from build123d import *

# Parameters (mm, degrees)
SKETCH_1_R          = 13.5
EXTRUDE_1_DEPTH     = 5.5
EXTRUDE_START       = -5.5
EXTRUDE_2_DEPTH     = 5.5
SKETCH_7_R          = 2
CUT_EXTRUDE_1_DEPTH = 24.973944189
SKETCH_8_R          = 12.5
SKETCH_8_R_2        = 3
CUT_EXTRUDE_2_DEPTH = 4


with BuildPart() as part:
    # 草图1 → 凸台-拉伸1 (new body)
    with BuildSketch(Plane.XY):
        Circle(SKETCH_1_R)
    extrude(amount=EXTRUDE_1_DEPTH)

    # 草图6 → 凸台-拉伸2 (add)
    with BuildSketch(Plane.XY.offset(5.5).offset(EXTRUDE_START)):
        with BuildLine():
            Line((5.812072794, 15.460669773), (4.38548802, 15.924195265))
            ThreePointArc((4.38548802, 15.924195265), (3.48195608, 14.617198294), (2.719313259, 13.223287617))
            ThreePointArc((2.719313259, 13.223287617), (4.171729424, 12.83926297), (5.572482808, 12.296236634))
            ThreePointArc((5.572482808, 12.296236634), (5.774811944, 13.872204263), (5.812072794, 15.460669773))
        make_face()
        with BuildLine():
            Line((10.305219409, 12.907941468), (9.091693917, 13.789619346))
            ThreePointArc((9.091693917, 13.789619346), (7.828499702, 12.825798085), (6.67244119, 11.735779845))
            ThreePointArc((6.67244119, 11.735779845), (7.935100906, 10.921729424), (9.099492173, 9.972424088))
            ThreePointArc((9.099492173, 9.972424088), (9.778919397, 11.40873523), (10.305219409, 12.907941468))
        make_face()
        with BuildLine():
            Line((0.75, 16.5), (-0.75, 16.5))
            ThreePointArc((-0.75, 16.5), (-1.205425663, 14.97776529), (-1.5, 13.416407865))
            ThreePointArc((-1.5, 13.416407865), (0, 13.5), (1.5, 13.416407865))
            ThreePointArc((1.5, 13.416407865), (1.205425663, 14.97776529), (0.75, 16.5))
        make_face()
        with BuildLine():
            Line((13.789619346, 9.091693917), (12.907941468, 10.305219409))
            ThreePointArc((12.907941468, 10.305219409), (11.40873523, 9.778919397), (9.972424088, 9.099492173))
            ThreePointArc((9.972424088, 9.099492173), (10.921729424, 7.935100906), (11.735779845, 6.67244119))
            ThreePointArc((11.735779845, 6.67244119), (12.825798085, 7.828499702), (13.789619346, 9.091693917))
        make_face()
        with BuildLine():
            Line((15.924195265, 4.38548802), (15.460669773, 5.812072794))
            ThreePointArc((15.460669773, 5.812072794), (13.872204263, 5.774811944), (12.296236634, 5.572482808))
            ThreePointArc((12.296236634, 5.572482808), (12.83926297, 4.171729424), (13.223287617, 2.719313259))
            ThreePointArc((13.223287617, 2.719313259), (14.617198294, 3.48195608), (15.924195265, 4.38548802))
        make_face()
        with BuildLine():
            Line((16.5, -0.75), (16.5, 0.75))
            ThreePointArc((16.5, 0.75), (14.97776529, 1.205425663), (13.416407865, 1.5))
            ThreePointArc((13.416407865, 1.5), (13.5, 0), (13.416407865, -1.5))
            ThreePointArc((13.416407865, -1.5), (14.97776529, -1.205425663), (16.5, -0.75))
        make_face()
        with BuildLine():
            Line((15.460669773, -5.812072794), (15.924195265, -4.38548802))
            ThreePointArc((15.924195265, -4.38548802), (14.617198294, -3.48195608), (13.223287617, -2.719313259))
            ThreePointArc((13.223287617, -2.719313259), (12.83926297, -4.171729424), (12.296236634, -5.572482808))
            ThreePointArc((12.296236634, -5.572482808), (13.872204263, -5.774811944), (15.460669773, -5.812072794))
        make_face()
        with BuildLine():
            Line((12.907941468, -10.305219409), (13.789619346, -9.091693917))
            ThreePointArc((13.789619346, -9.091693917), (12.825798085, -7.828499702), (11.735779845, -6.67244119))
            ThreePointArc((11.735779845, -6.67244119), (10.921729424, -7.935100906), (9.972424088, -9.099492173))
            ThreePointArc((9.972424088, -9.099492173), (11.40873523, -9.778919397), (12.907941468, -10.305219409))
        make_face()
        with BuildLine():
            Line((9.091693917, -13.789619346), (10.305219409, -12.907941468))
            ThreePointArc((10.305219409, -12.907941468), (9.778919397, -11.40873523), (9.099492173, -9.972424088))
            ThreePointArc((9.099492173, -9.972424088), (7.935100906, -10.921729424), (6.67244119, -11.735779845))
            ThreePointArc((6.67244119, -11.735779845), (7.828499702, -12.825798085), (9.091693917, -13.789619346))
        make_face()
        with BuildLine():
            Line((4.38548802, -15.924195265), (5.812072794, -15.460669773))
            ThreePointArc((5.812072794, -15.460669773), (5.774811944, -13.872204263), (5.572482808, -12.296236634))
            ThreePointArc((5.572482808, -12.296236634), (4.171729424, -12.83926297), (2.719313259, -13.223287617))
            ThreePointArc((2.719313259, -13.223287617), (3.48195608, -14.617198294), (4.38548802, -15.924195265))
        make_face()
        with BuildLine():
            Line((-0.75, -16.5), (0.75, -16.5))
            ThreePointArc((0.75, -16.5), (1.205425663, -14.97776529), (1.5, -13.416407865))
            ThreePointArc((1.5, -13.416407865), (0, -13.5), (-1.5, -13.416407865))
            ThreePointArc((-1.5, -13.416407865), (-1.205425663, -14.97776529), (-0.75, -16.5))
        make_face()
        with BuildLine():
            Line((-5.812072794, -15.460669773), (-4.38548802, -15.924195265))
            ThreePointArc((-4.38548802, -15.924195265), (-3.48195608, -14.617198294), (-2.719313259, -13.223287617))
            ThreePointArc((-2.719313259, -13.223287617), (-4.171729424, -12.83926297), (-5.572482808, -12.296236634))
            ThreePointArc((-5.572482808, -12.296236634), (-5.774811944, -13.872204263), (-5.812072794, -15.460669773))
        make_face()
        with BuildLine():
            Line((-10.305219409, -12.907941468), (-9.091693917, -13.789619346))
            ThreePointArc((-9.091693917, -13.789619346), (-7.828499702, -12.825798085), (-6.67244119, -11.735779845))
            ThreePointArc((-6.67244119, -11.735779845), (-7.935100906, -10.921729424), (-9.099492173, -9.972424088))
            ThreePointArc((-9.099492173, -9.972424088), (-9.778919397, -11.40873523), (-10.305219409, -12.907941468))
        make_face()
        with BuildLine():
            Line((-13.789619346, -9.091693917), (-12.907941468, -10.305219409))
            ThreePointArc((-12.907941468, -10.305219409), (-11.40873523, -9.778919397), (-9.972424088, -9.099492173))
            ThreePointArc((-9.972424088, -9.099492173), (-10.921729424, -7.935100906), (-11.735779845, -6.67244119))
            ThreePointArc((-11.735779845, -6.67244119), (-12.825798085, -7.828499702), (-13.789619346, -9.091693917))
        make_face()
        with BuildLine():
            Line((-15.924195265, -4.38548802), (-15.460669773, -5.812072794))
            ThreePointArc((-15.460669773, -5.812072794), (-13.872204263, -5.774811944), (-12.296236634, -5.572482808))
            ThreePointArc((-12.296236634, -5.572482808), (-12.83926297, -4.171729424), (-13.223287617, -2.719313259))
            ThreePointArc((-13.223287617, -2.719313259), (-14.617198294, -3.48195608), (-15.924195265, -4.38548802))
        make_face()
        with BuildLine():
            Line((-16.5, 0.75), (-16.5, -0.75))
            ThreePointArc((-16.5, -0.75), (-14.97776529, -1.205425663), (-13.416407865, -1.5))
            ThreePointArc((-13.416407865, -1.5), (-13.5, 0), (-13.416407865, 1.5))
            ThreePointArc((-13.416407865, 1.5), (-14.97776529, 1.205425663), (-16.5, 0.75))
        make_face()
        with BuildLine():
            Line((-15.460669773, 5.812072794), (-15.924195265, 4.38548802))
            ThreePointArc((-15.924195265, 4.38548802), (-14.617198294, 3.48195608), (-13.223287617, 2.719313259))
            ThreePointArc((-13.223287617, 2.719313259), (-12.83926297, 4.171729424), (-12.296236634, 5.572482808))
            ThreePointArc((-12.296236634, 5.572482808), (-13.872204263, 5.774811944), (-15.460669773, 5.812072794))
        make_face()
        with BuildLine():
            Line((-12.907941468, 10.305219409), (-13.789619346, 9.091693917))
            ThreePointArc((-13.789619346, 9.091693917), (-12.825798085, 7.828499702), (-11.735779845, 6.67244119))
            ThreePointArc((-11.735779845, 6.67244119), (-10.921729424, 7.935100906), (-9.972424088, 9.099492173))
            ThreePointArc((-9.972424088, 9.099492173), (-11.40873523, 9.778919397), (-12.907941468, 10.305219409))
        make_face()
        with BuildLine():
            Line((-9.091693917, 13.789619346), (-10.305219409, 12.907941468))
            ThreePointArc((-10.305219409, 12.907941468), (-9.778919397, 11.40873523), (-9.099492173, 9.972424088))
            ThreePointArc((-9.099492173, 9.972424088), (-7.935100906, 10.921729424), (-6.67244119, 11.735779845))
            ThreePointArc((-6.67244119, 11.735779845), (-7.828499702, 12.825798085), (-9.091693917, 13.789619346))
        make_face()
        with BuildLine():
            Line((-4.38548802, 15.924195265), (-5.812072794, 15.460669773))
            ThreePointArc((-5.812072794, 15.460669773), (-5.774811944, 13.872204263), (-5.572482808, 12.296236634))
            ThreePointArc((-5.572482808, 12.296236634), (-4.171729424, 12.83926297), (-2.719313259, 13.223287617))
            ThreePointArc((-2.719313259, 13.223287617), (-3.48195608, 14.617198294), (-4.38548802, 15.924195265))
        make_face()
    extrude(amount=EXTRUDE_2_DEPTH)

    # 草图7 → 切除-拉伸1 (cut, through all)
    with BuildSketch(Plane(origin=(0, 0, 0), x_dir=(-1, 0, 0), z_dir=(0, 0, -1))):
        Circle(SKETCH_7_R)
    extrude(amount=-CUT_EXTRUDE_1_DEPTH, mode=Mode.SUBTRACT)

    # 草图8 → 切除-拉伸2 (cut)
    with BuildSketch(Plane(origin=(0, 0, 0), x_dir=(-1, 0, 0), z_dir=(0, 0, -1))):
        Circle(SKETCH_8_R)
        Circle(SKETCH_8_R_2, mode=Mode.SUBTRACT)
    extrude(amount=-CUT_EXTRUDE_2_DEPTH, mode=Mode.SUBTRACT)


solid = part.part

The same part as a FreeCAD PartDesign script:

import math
import FreeCAD as App
import Part
import Sketcher

V = App.Vector
Q = App.Units.Quantity

doc = App.newDocument("Part")
body = doc.addObject("PartDesign::Body", "Body")

sketch1 = doc.addObject("Sketcher::SketchObject", "Sketch")
body.addObject(sketch1)
sketch1.AttachmentSupport = (doc.XY_Plane, [""])
sketch1.MapMode = "FlatFace"
sketch1.addGeometry(Part.Circle(V(0, 0, 0), V(0, 0, 1), 14), False)
sketch1.addConstraint(Sketcher.Constraint("Coincident", 0, 3, -1, 1))
sketch1.addConstraint(Sketcher.Constraint("Diameter", 0, Q("27 mm")))
pad1 = doc.addObject("PartDesign::Pad", "Pad")
body.addObject(pad1)
pad1.Profile = sketch1
pad1.Length = 5.5

sketch2 = doc.addObject("Sketcher::SketchObject", "Sketch001")
body.addObject(sketch2)
sketch2.AttachmentSupport = (doc.XY_Plane, [""])
sketch2.MapMode = "FlatFace"
sketch2.addGeometry(Part.LineSegment(V(5.8, 15.5, 0), V(4.4, 15.9, 0)), False)
sketch2.addGeometry(Part.ArcOfCircle(Part.Circle(V(16.5, 6.6, 0), V(0, 0, 1), 15.3), math.radians(142.36), math.radians(154.3)), False)
sketch2.addGeometry(Part.ArcOfCircle(Part.Circle(V(0, 0, 0), V(0, 0, 1), 13.5), math.radians(65.62), math.radians(78.38)), False)
sketch2.addGeometry(Part.ArcOfCircle(Part.Circle(V(-9.4, 15, 0), V(0, 0, 1), 15.3), math.radians(-10.3), math.radians(1.64)), False)
sketch2.addGeometry(Part.LineSegment(V(10.3, 12.9, 0), V(9.1, 13.8, 0)), False)
sketch2.addGeometry(Part.ArcOfCircle(Part.Circle(V(17.7, 1.2, 0), V(0, 0, 1), 15.3), math.radians(124.36), math.radians(136.3)), False)
sketch2.addGeometry(Part.ArcOfCircle(Part.Circle(V(0, 0, 0), V(0, 0, 1), 13.5), math.radians(47.62), math.radians(60.38)), False)
sketch2.addGeometry(Part.ArcOfCircle(Part.Circle(V(-4.3, 17.2, 0), V(0, 0, 1), 15.3), math.radians(-28.3), math.radians(-16.36)), False)
sketch2.addGeometry(Part.LineSegment(V(0.8, 16.5, 0), V(-0.8, 16.5, 0)), False)
sketch2.addGeometry(Part.ArcOfCircle(Part.Circle(V(13.6, 11.4, 0), V(0, 0, 1), 15.3), math.radians(160.36), math.radians(172.3)), False)
sketch2.addGeometry(Part.ArcOfCircle(Part.Circle(V(0, 0, 0), V(0, 0, 1), 13.5), math.radians(83.62), math.radians(96.38)), False)
sketch2.addGeometry(Part.ArcOfCircle(Part.Circle(V(-13.6, 11.4, 0), V(0, 0, 1), 15.3), math.radians(7.7), math.radians(19.64)), False)
sketch2.addGeometry(Part.LineSegment(V(13.8, 9.1, 0), V(12.9, 10.3, 0)), False)
sketch2.addGeometry(Part.ArcOfCircle(Part.Circle(V(17.2, -4.3, 0), V(0, 0, 1), 15.3), math.radians(106.36), math.radians(118.3)), False)
sketch2.addGeometry(Part.ArcOfCircle(Part.Circle(V(0, 0, 0), V(0, 0, 1), 13.5), math.radians(29.62), math.radians(42.38)), False)
sketch2.addGeometry(Part.ArcOfCircle(Part.Circle(V(1.2, 17.7, 0), V(0, 0, 1), 15.3), math.radians(-46.3), math.radians(-34.36)), False)
sketch2.addGeometry(Part.LineSegment(V(15.9, 4.4, 0), V(15.5, 5.8, 0)), False)
sketch2.addGeometry(Part.ArcOfCircle(Part.Circle(V(15, -9.4, 0), V(0, 0, 1), 15.3), math.radians(88.36), math.radians(100.3)), False)
sketch2.addGeometry(Part.ArcOfCircle(Part.Circle(V(0, 0, 0), V(0, 0, 1), 13.5), math.radians(11.62), math.radians(24.38)), False)
sketch2.addGeometry(Part.ArcOfCircle(Part.Circle(V(6.6, 16.5, 0), V(0, 0, 1), 15.3), math.radians(-64.3), math.radians(-52.36)), False)
sketch2.addGeometry(Part.LineSegment(V(16.5, -0.8, 0), V(16.5, 0.8, 0)), False)
sketch2.addGeometry(Part.ArcOfCircle(Part.Circle(V(11.4, -13.6, 0), V(0, 0, 1), 15.3), math.radians(70.36), math.radians(82.3)), False)
sketch2.addGeometry(Part.ArcOfCircle(Part.Circle(V(0, 0, 0), V(0, 0, 1), 13.5), math.radians(-6.38), math.radians(6.38)), False)
sketch2.addGeometry(Part.ArcOfCircle(Part.Circle(V(11.4, 13.6, 0), V(0, 0, 1), 15.3), math.radians(-82.3), math.radians(-70.36)), False)
sketch2.addGeometry(Part.LineSegment(V(15.5, -5.8, 0), V(15.9, -4.4, 0)), False)
sketch2.addGeometry(Part.ArcOfCircle(Part.Circle(V(6.6, -16.5, 0), V(0, 0, 1), 15.3), math.radians(52.36), math.radians(64.3)), False)
sketch2.addGeometry(Part.ArcOfCircle(Part.Circle(V(0, 0, 0), V(0, 0, 1), 13.5), math.radians(-24.38), math.radians(-11.62)), False)
sketch2.addGeometry(Part.ArcOfCircle(Part.Circle(V(15, 9.4, 0), V(0, 0, 1), 15.3), math.radians(-100.3), math.radians(-88.36)), False)
sketch2.addGeometry(Part.LineSegment(V(12.9, -10.3, 0), V(13.8, -9.1, 0)), False)
sketch2.addGeometry(Part.ArcOfCircle(Part.Circle(V(1.2, -17.7, 0), V(0, 0, 1), 15.3), math.radians(34.36), math.radians(46.3)), False)
sketch2.addGeometry(Part.ArcOfCircle(Part.Circle(V(0, 0, 0), V(0, 0, 1), 13.5), math.radians(-42.38), math.radians(-29.62)), False)
sketch2.addGeometry(Part.ArcOfCircle(Part.Circle(V(17.2, 4.3, 0), V(0, 0, 1), 15.3), math.radians(-118.3), math.radians(-106.36)), False)
sketch2.addGeometry(Part.LineSegment(V(9.1, -13.8, 0), V(10.3, -12.9, 0)), False)
sketch2.addGeometry(Part.ArcOfCircle(Part.Circle(V(-4.3, -17.2, 0), V(0, 0, 1), 15.3), math.radians(16.36), math.radians(28.3)), False)
sketch2.addGeometry(Part.ArcOfCircle(Part.Circle(V(0, 0, 0), V(0, 0, 1), 13.5), math.radians(-60.38), math.radians(-47.62)), False)
sketch2.addGeometry(Part.ArcOfCircle(Part.Circle(V(17.7, -1.2, 0), V(0, 0, 1), 15.3), math.radians(-136.3), math.radians(-124.36)), False)
sketch2.addGeometry(Part.LineSegment(V(4.4, -15.9, 0), V(5.8, -15.5, 0)), False)
sketch2.addGeometry(Part.ArcOfCircle(Part.Circle(V(-9.4, -15, 0), V(0, 0, 1), 15.3), math.radians(-1.64), math.radians(10.3)), False)
sketch2.addGeometry(Part.ArcOfCircle(Part.Circle(V(0, 0, 0), V(0, 0, 1), 13.5), math.radians(-78.38), math.radians(-65.62)), False)
sketch2.addGeometry(Part.ArcOfCircle(Part.Circle(V(16.5, -6.6, 0), V(0, 0, 1), 15.3), math.radians(-154.3), math.radians(-142.36)), False)
sketch2.addGeometry(Part.LineSegment(V(-0.8, -16.5, 0), V(0.8, -16.5, 0)), False)
sketch2.addGeometry(Part.ArcOfCircle(Part.Circle(V(-13.6, -11.4, 0), V(0, 0, 1), 15.3), math.radians(-19.64), math.radians(-7.7)), False)
sketch2.addGeometry(Part.ArcOfCircle(Part.Circle(V(0, 0, 0), V(0, 0, 1), 13.5), math.radians(-96.38), math.radians(-83.62)), False)
sketch2.addGeometry(Part.ArcOfCircle(Part.Circle(V(13.6, -11.4, 0), V(0, 0, 1), 15.3), math.radians(-172.3), math.radians(-160.36)), False)
sketch2.addGeometry(Part.LineSegment(V(-5.8, -15.5, 0), V(-4.4, -15.9, 0)), False)
sketch2.addGeometry(Part.ArcOfCircle(Part.Circle(V(-16.5, -6.6, 0), V(0, 0, 1), 15.3), math.radians(-37.64), math.radians(-25.7)), False)
sketch2.addGeometry(Part.ArcOfCircle(Part.Circle(V(0, 0, 0), V(0, 0, 1), 13.5), math.radians(-114.38), math.radians(-101.62)), False)
sketch2.addGeometry(Part.ArcOfCircle(Part.Circle(V(9.4, -15, 0), V(0, 0, 1), 15.3), math.radians(169.7), math.radians(181.64)), False)
sketch2.addGeometry(Part.LineSegment(V(-10.3, -12.9, 0), V(-9.1, -13.8, 0)), False)
sketch2.addGeometry(Part.ArcOfCircle(Part.Circle(V(-17.7, -1.2, 0), V(0, 0, 1), 15.3), math.radians(-55.64), math.radians(-43.7)), False)
sketch2.addGeometry(Part.ArcOfCircle(Part.Circle(V(0, 0, 0), V(0, 0, 1), 13.5), math.radians(-132.38), math.radians(-119.62)), False)
sketch2.addGeometry(Part.ArcOfCircle(Part.Circle(V(4.3, -17.2, 0), V(0, 0, 1), 15.3), math.radians(151.7), math.radians(163.64)), False)
sketch2.addGeometry(Part.LineSegment(V(-13.8, -9.1, 0), V(-12.9, -10.3, 0)), False)
sketch2.addGeometry(Part.ArcOfCircle(Part.Circle(V(-17.2, 4.3, 0), V(0, 0, 1), 15.3), math.radians(-73.64), math.radians(-61.7)), False)
sketch2.addGeometry(Part.ArcOfCircle(Part.Circle(V(0, 0, 0), V(0, 0, 1), 13.5), math.radians(-150.38), math.radians(-137.62)), False)
sketch2.addGeometry(Part.ArcOfCircle(Part.Circle(V(-1.2, -17.7, 0), V(0, 0, 1), 15.3), math.radians(133.7), math.radians(145.64)), False)
sketch2.addGeometry(Part.LineSegment(V(-15.9, -4.4, 0), V(-15.5, -5.8, 0)), False)
sketch2.addGeometry(Part.ArcOfCircle(Part.Circle(V(-15, 9.4, 0), V(0, 0, 1), 15.3), math.radians(-91.64), math.radians(-79.7)), False)
sketch2.addGeometry(Part.ArcOfCircle(Part.Circle(V(0, 0, 0), V(0, 0, 1), 13.5), math.radians(-168.38), math.radians(-155.62)), False)
sketch2.addGeometry(Part.ArcOfCircle(Part.Circle(V(-6.6, -16.5, 0), V(0, 0, 1), 15.3), math.radians(115.7), math.radians(127.64)), False)
sketch2.addGeometry(Part.LineSegment(V(-16.5, 0.8, 0), V(-16.5, -0.8, 0)), False)
sketch2.addGeometry(Part.ArcOfCircle(Part.Circle(V(-11.4, 13.6, 0), V(0, 0, 1), 15.3), math.radians(-109.64), math.radians(-97.7)), False)
sketch2.addGeometry(Part.ArcOfCircle(Part.Circle(V(0, 0, 0), V(0, 0, 1), 13.5), math.radians(173.62), math.radians(186.38)), False)
sketch2.addGeometry(Part.ArcOfCircle(Part.Circle(V(-11.4, -13.6, 0), V(0, 0, 1), 15.3), math.radians(97.7), math.radians(109.64)), False)
sketch2.addGeometry(Part.LineSegment(V(-15.5, 5.8, 0), V(-15.9, 4.4, 0)), False)
sketch2.addGeometry(Part.ArcOfCircle(Part.Circle(V(-6.6, 16.5, 0), V(0, 0, 1), 15.3), math.radians(-127.64), math.radians(-115.7)), False)
sketch2.addGeometry(Part.ArcOfCircle(Part.Circle(V(0, 0, 0), V(0, 0, 1), 13.5), math.radians(155.62), math.radians(168.38)), False)
sketch2.addGeometry(Part.ArcOfCircle(Part.Circle(V(-15, -9.4, 0), V(0, 0, 1), 15.3), math.radians(79.7), math.radians(91.64)), False)
sketch2.addGeometry(Part.LineSegment(V(-12.9, 10.3, 0), V(-13.8, 9.1, 0)), False)
sketch2.addGeometry(Part.ArcOfCircle(Part.Circle(V(-1.2, 17.7, 0), V(0, 0, 1), 15.3), math.radians(-145.64), math.radians(-133.7)), False)
sketch2.addGeometry(Part.ArcOfCircle(Part.Circle(V(0, 0, 0), V(0, 0, 1), 13.5), math.radians(137.62), math.radians(150.38)), False)
sketch2.addGeometry(Part.ArcOfCircle(Part.Circle(V(-17.2, -4.3, 0), V(0, 0, 1), 15.3), math.radians(61.7), math.radians(73.64)), False)
sketch2.addGeometry(Part.LineSegment(V(-9.1, 13.8, 0), V(-10.3, 12.9, 0)), False)
sketch2.addGeometry(Part.ArcOfCircle(Part.Circle(V(4.3, 17.2, 0), V(0, 0, 1), 15.3), math.radians(-163.64), math.radians(-151.7)), False)
sketch2.addGeometry(Part.ArcOfCircle(Part.Circle(V(0, 0, 0), V(0, 0, 1), 13.5), math.radians(119.62), math.radians(132.38)), False)
sketch2.addGeometry(Part.ArcOfCircle(Part.Circle(V(-17.7, 1.2, 0), V(0, 0, 1), 15.3), math.radians(43.7), math.radians(55.64)), False)
sketch2.addGeometry(Part.LineSegment(V(-4.4, 15.9, 0), V(-5.8, 15.5, 0)), False)
sketch2.addGeometry(Part.ArcOfCircle(Part.Circle(V(9.4, 15, 0), V(0, 0, 1), 15.3), math.radians(178.36), math.radians(190.3)), False)
sketch2.addGeometry(Part.ArcOfCircle(Part.Circle(V(0, 0, 0), V(0, 0, 1), 13.5), math.radians(101.62), math.radians(114.38)), False)
sketch2.addGeometry(Part.ArcOfCircle(Part.Circle(V(-16.5, 6.6, 0), V(0, 0, 1), 15.3), math.radians(25.7), math.radians(37.64)), False)
sketch2.addConstraint(Sketcher.Constraint("Coincident", 0, 2, 1, 1))
sketch2.addConstraint(Sketcher.Constraint("Coincident", 1, 2, 2, 2))
sketch2.addConstraint(Sketcher.Constraint("Coincident", 2, 1, 3, 1))
sketch2.addConstraint(Sketcher.Constraint("Coincident", 3, 2, 0, 1))
sketch2.addConstraint(Sketcher.Constraint("Coincident", 4, 2, 5, 1))
sketch2.addConstraint(Sketcher.Constraint("Coincident", 5, 2, 6, 2))
sketch2.addConstraint(Sketcher.Constraint("Coincident", 6, 1, 7, 1))
sketch2.addConstraint(Sketcher.Constraint("Coincident", 7, 2, 4, 1))
sketch2.addConstraint(Sketcher.Constraint("Coincident", 8, 2, 9, 1))
sketch2.addConstraint(Sketcher.Constraint("Coincident", 9, 2, 10, 2))
sketch2.addConstraint(Sketcher.Constraint("Coincident", 10, 1, 11, 1))
sketch2.addConstraint(Sketcher.Constraint("Coincident", 11, 2, 8, 1))
sketch2.addConstraint(Sketcher.Constraint("Coincident", 12, 2, 13, 1))
sketch2.addConstraint(Sketcher.Constraint("Coincident", 13, 2, 14, 2))
sketch2.addConstraint(Sketcher.Constraint("Coincident", 14, 1, 15, 1))
sketch2.addConstraint(Sketcher.Constraint("Coincident", 15, 2, 12, 1))
sketch2.addConstraint(Sketcher.Constraint("Coincident", 16, 2, 17, 1))
sketch2.addConstraint(Sketcher.Constraint("Coincident", 17, 2, 18, 2))
sketch2.addConstraint(Sketcher.Constraint("Coincident", 18, 1, 19, 1))
sketch2.addConstraint(Sketcher.Constraint("Coincident", 19, 2, 16, 1))
sketch2.addConstraint(Sketcher.Constraint("Coincident", 20, 2, 21, 1))
sketch2.addConstraint(Sketcher.Constraint("Coincident", 21, 2, 22, 2))
sketch2.addConstraint(Sketcher.Constraint("Coincident", 22, 1, 23, 1))
sketch2.addConstraint(Sketcher.Constraint("Coincident", 23, 2, 20, 1))
sketch2.addConstraint(Sketcher.Constraint("Coincident", 24, 2, 25, 1))
sketch2.addConstraint(Sketcher.Constraint("Coincident", 25, 2, 26, 2))
sketch2.addConstraint(Sketcher.Constraint("Coincident", 26, 1, 27, 1))
sketch2.addConstraint(Sketcher.Constraint("Coincident", 27, 2, 24, 1))
sketch2.addConstraint(Sketcher.Constraint("Coincident", 28, 2, 29, 1))
sketch2.addConstraint(Sketcher.Constraint("Coincident", 29, 2, 30, 2))
sketch2.addConstraint(Sketcher.Constraint("Coincident", 30, 1, 31, 1))
sketch2.addConstraint(Sketcher.Constraint("Coincident", 31, 2, 28, 1))
sketch2.addConstraint(Sketcher.Constraint("Coincident", 32, 2, 33, 1))
sketch2.addConstraint(Sketcher.Constraint("Coincident", 33, 2, 34, 2))
sketch2.addConstraint(Sketcher.Constraint("Coincident", 34, 1, 35, 1))
sketch2.addConstraint(Sketcher.Constraint("Coincident", 35, 2, 32, 1))
sketch2.addConstraint(Sketcher.Constraint("Coincident", 36, 2, 37, 1))
sketch2.addConstraint(Sketcher.Constraint("Coincident", 37, 2, 38, 2))
sketch2.addConstraint(Sketcher.Constraint("Coincident", 38, 1, 39, 1))
sketch2.addConstraint(Sketcher.Constraint("Coincident", 39, 2, 36, 1))
sketch2.addConstraint(Sketcher.Constraint("Coincident", 40, 2, 41, 1))
sketch2.addConstraint(Sketcher.Constraint("Coincident", 41, 2, 42, 2))
sketch2.addConstraint(Sketcher.Constraint("Coincident", 42, 1, 43, 1))
sketch2.addConstraint(Sketcher.Constraint("Coincident", 43, 2, 40, 1))
sketch2.addConstraint(Sketcher.Constraint("Coincident", 44, 2, 45, 1))
sketch2.addConstraint(Sketcher.Constraint("Coincident", 45, 2, 46, 2))
sketch2.addConstraint(Sketcher.Constraint("Coincident", 46, 1, 47, 1))
sketch2.addConstraint(Sketcher.Constraint("Coincident", 47, 2, 44, 1))
sketch2.addConstraint(Sketcher.Constraint("Coincident", 48, 2, 49, 1))
sketch2.addConstraint(Sketcher.Constraint("Coincident", 49, 2, 50, 2))
sketch2.addConstraint(Sketcher.Constraint("Coincident", 50, 1, 51, 1))
sketch2.addConstraint(Sketcher.Constraint("Coincident", 51, 2, 48, 1))
sketch2.addConstraint(Sketcher.Constraint("Coincident", 52, 2, 53, 1))
sketch2.addConstraint(Sketcher.Constraint("Coincident", 53, 2, 54, 2))
sketch2.addConstraint(Sketcher.Constraint("Coincident", 54, 1, 55, 1))
sketch2.addConstraint(Sketcher.Constraint("Coincident", 55, 2, 52, 1))
sketch2.addConstraint(Sketcher.Constraint("Coincident", 56, 2, 57, 1))
sketch2.addConstraint(Sketcher.Constraint("Coincident", 57, 2, 58, 2))
sketch2.addConstraint(Sketcher.Constraint("Coincident", 58, 1, 59, 1))
sketch2.addConstraint(Sketcher.Constraint("Coincident", 59, 2, 56, 1))
sketch2.addConstraint(Sketcher.Constraint("Coincident", 60, 2, 61, 1))
sketch2.addConstraint(Sketcher.Constraint("Coincident", 61, 2, 62, 2))
sketch2.addConstraint(Sketcher.Constraint("Coincident", 62, 1, 63, 1))
sketch2.addConstraint(Sketcher.Constraint("Coincident", 63, 2, 60, 1))
sketch2.addConstraint(Sketcher.Constraint("Coincident", 64, 2, 65, 1))
sketch2.addConstraint(Sketcher.Constraint("Coincident", 65, 2, 66, 2))
sketch2.addConstraint(Sketcher.Constraint("Coincident", 66, 1, 67, 1))
sketch2.addConstraint(Sketcher.Constraint("Coincident", 67, 2, 64, 1))
sketch2.addConstraint(Sketcher.Constraint("Coincident", 68, 2, 69, 1))
sketch2.addConstraint(Sketcher.Constraint("Coincident", 69, 2, 70, 2))
sketch2.addConstraint(Sketcher.Constraint("Coincident", 70, 1, 71, 1))
sketch2.addConstraint(Sketcher.Constraint("Coincident", 71, 2, 68, 1))
sketch2.addConstraint(Sketcher.Constraint("Coincident", 72, 2, 73, 1))
sketch2.addConstraint(Sketcher.Constraint("Coincident", 73, 2, 74, 2))
sketch2.addConstraint(Sketcher.Constraint("Coincident", 74, 1, 75, 1))
sketch2.addConstraint(Sketcher.Constraint("Coincident", 75, 2, 72, 1))
sketch2.addConstraint(Sketcher.Constraint("Coincident", 76, 2, 77, 1))
sketch2.addConstraint(Sketcher.Constraint("Coincident", 77, 2, 78, 2))
sketch2.addConstraint(Sketcher.Constraint("Coincident", 78, 1, 79, 1))
sketch2.addConstraint(Sketcher.Constraint("Coincident", 79, 2, 76, 1))
sketch2.addConstraint(Sketcher.Constraint("Horizontal", 8))
sketch2.addConstraint(Sketcher.Constraint("Vertical", 20))
sketch2.addConstraint(Sketcher.Constraint("Horizontal", 40))
sketch2.addConstraint(Sketcher.Constraint("Vertical", 60))
sketch2.addConstraint(Sketcher.Constraint("Coincident", 2, 3, -1, 1))
sketch2.addConstraint(Sketcher.Constraint("Coincident", 6, 3, -1, 1))
sketch2.addConstraint(Sketcher.Constraint("Coincident", 10, 3, -1, 1))
sketch2.addConstraint(Sketcher.Constraint("Coincident", 14, 3, -1, 1))
sketch2.addConstraint(Sketcher.Constraint("Coincident", 18, 3, -1, 1))
sketch2.addConstraint(Sketcher.Constraint("Coincident", 22, 3, -1, 1))
sketch2.addConstraint(Sketcher.Constraint("Coincident", 26, 3, -1, 1))
sketch2.addConstraint(Sketcher.Constraint("Coincident", 30, 3, -1, 1))
sketch2.addConstraint(Sketcher.Constraint("Coincident", 34, 3, -1, 1))
sketch2.addConstraint(Sketcher.Constraint("Coincident", 38, 3, -1, 1))
sketch2.addConstraint(Sketcher.Constraint("Coincident", 42, 3, -1, 1))
sketch2.addConstraint(Sketcher.Constraint("Coincident", 46, 3, -1, 1))
sketch2.addConstraint(Sketcher.Constraint("Coincident", 50, 3, -1, 1))
sketch2.addConstraint(Sketcher.Constraint("Coincident", 54, 3, -1, 1))
sketch2.addConstraint(Sketcher.Constraint("Coincident", 58, 3, -1, 1))
sketch2.addConstraint(Sketcher.Constraint("Coincident", 62, 3, -1, 1))
sketch2.addConstraint(Sketcher.Constraint("Coincident", 66, 3, -1, 1))
sketch2.addConstraint(Sketcher.Constraint("Coincident", 70, 3, -1, 1))
sketch2.addConstraint(Sketcher.Constraint("Coincident", 74, 3, -1, 1))
sketch2.addConstraint(Sketcher.Constraint("Coincident", 78, 3, -1, 1))
sketch2.addConstraint(Sketcher.Constraint("Equal", 1, 3))
sketch2.addConstraint(Sketcher.Constraint("Equal", 3, 5))
sketch2.addConstraint(Sketcher.Constraint("Equal", 2, 6))
sketch2.addConstraint(Sketcher.Constraint("Equal", 5, 7))
sketch2.addConstraint(Sketcher.Constraint("Equal", 7, 9))
sketch2.addConstraint(Sketcher.Constraint("Equal", 6, 10))
sketch2.addConstraint(Sketcher.Constraint("Equal", 9, 11))
sketch2.addConstraint(Sketcher.Constraint("Equal", 11, 13))
sketch2.addConstraint(Sketcher.Constraint("Equal", 10, 14))
sketch2.addConstraint(Sketcher.Constraint("Equal", 13, 15))
sketch2.addConstraint(Sketcher.Constraint("Equal", 15, 17))
sketch2.addConstraint(Sketcher.Constraint("Equal", 14, 18))
sketch2.addConstraint(Sketcher.Constraint("Equal", 17, 19))
sketch2.addConstraint(Sketcher.Constraint("Equal", 19, 21))
sketch2.addConstraint(Sketcher.Constraint("Equal", 18, 22))
sketch2.addConstraint(Sketcher.Constraint("Equal", 21, 23))
sketch2.addConstraint(Sketcher.Constraint("Equal", 23, 25))
sketch2.addConstraint(Sketcher.Constraint("Equal", 22, 26))
sketch2.addConstraint(Sketcher.Constraint("Equal", 25, 27))
sketch2.addConstraint(Sketcher.Constraint("Equal", 27, 29))
sketch2.addConstraint(Sketcher.Constraint("Equal", 26, 30))
sketch2.addConstraint(Sketcher.Constraint("Equal", 29, 31))
sketch2.addConstraint(Sketcher.Constraint("Equal", 31, 33))
sketch2.addConstraint(Sketcher.Constraint("Equal", 30, 34))
sketch2.addConstraint(Sketcher.Constraint("Equal", 33, 35))
sketch2.addConstraint(Sketcher.Constraint("Equal", 35, 37))
sketch2.addConstraint(Sketcher.Constraint("Equal", 34, 38))
sketch2.addConstraint(Sketcher.Constraint("Equal", 37, 39))
sketch2.addConstraint(Sketcher.Constraint("Equal", 39, 41))
sketch2.addConstraint(Sketcher.Constraint("Equal", 38, 42))
sketch2.addConstraint(Sketcher.Constraint("Equal", 41, 43))
sketch2.addConstraint(Sketcher.Constraint("Equal", 43, 45))
sketch2.addConstraint(Sketcher.Constraint("Equal", 42, 46))
sketch2.addConstraint(Sketcher.Constraint("Equal", 45, 47))
sketch2.addConstraint(Sketcher.Constraint("Equal", 47, 49))
sketch2.addConstraint(Sketcher.Constraint("Equal", 46, 50))
sketch2.addConstraint(Sketcher.Constraint("Equal", 49, 51))
sketch2.addConstraint(Sketcher.Constraint("Equal", 51, 53))
sketch2.addConstraint(Sketcher.Constraint("Equal", 50, 54))
sketch2.addConstraint(Sketcher.Constraint("Equal", 53, 55))
sketch2.addConstraint(Sketcher.Constraint("Equal", 55, 57))
sketch2.addConstraint(Sketcher.Constraint("Equal", 54, 58))
sketch2.addConstraint(Sketcher.Constraint("Equal", 57, 59))
sketch2.addConstraint(Sketcher.Constraint("Equal", 59, 61))
sketch2.addConstraint(Sketcher.Constraint("Equal", 58, 62))
sketch2.addConstraint(Sketcher.Constraint("Equal", 61, 63))
sketch2.addConstraint(Sketcher.Constraint("Equal", 63, 65))
sketch2.addConstraint(Sketcher.Constraint("Equal", 62, 66))
sketch2.addConstraint(Sketcher.Constraint("Equal", 65, 67))
sketch2.addConstraint(Sketcher.Constraint("Equal", 67, 69))
sketch2.addConstraint(Sketcher.Constraint("Equal", 66, 70))
sketch2.addConstraint(Sketcher.Constraint("Equal", 69, 71))
sketch2.addConstraint(Sketcher.Constraint("Equal", 71, 73))
sketch2.addConstraint(Sketcher.Constraint("Equal", 70, 74))
sketch2.addConstraint(Sketcher.Constraint("Equal", 73, 75))
sketch2.addConstraint(Sketcher.Constraint("Equal", 75, 77))
sketch2.addConstraint(Sketcher.Constraint("Equal", 74, 78))
sketch2.addConstraint(Sketcher.Constraint("Equal", 77, 79))
sketch2.addConstraint(Sketcher.Constraint("Symmetric", 9, 3, 41, 3, -1, 1))
sketch2.addConstraint(Sketcher.Constraint("Symmetric", 11, 3, 43, 3, -1, 1))
sketch2.addConstraint(Sketcher.Constraint("Symmetric", 1, 3, 45, 3, -1, 1))
sketch2.addConstraint(Sketcher.Constraint("Symmetric", 3, 3, 47, 3, -1, 1))
sketch2.addConstraint(Sketcher.Constraint("Symmetric", 5, 3, 49, 3, -1, 1))
sketch2.addConstraint(Sketcher.Constraint("Symmetric", 7, 3, 51, 3, -1, 1))
sketch2.addConstraint(Sketcher.Constraint("Symmetric", 13, 3, 53, 3, -1, 1))
sketch2.addConstraint(Sketcher.Constraint("Symmetric", 15, 3, 55, 3, -1, 1))
sketch2.addConstraint(Sketcher.Constraint("Symmetric", 17, 3, 57, 3, -1, 1))
sketch2.addConstraint(Sketcher.Constraint("Symmetric", 19, 3, 59, 3, -1, 1))
sketch2.addConstraint(Sketcher.Constraint("Symmetric", 21, 3, 61, 3, -1, 1))
sketch2.addConstraint(Sketcher.Constraint("Symmetric", 23, 3, 63, 3, -1, 1))
sketch2.addConstraint(Sketcher.Constraint("Symmetric", 25, 3, 65, 3, -1, 1))
sketch2.addConstraint(Sketcher.Constraint("Symmetric", 27, 3, 67, 3, -1, 1))
sketch2.addConstraint(Sketcher.Constraint("Symmetric", 29, 3, 69, 3, -1, 1))
sketch2.addConstraint(Sketcher.Constraint("Symmetric", 31, 3, 71, 3, -1, 1))
sketch2.addConstraint(Sketcher.Constraint("Symmetric", 33, 3, 73, 3, -1, 1))
sketch2.addConstraint(Sketcher.Constraint("Symmetric", 35, 3, 75, 3, -1, 1))
sketch2.addConstraint(Sketcher.Constraint("Symmetric", 37, 3, 77, 3, -1, 1))
sketch2.addConstraint(Sketcher.Constraint("Symmetric", 39, 3, 79, 3, -1, 1))
sketch2.addConstraint(Sketcher.Constraint("Symmetric", 9, 3, 11, 3, -2))
sketch2.addConstraint(Sketcher.Constraint("Symmetric", 39, 3, 45, 3, -2))
sketch2.addConstraint(Sketcher.Constraint("Symmetric", 37, 3, 47, 3, -2))
sketch2.addConstraint(Sketcher.Constraint("Symmetric", 35, 3, 49, 3, -2))
sketch2.addConstraint(Sketcher.Constraint("Symmetric", 33, 3, 51, 3, -2))
sketch2.addConstraint(Sketcher.Constraint("Symmetric", 31, 3, 53, 3, -2))
sketch2.addConstraint(Sketcher.Constraint("Symmetric", 29, 3, 55, 3, -2))
sketch2.addConstraint(Sketcher.Constraint("Symmetric", 27, 3, 57, 3, -2))
sketch2.addConstraint(Sketcher.Constraint("Symmetric", 25, 3, 59, 3, -2))
sketch2.addConstraint(Sketcher.Constraint("Symmetric", 23, 3, 61, 3, -2))
sketch2.addConstraint(Sketcher.Constraint("Perpendicular", 0, 24))
sketch2.addConstraint(Sketcher.Constraint("Perpendicular", 4, 28))
sketch2.addConstraint(Sketcher.Constraint("Perpendicular", 12, 32))
sketch2.addConstraint(Sketcher.Constraint("Perpendicular", 16, 36))
sketch2.addConstraint(Sketcher.Constraint("Perpendicular", 24, 44))
sketch2.addConstraint(Sketcher.Constraint("Perpendicular", 28, 48))
sketch2.addConstraint(Sketcher.Constraint("Perpendicular", 32, 52))
sketch2.addConstraint(Sketcher.Constraint("Perpendicular", 36, 56))
sketch2.addConstraint(Sketcher.Constraint("Perpendicular", 44, 64))
sketch2.addConstraint(Sketcher.Constraint("Perpendicular", 48, 68))
sketch2.addConstraint(Sketcher.Constraint("Perpendicular", 52, 72))
sketch2.addConstraint(Sketcher.Constraint("Perpendicular", 56, 76))
sketch2.addConstraint(Sketcher.Constraint("Horizontal", 39, 2, 44, 2))
sketch2.addConstraint(Sketcher.Constraint("Horizontal", 36, 2, 47, 2))
sketch2.addConstraint(Sketcher.Constraint("Horizontal", 35, 2, 48, 2))
sketch2.addConstraint(Sketcher.Constraint("Horizontal", 32, 2, 51, 2))
sketch2.addConstraint(Sketcher.Constraint("Horizontal", 31, 2, 52, 2))
sketch2.addConstraint(Sketcher.Constraint("Horizontal", 27, 2, 56, 2))
sketch2.addConstraint(Sketcher.Constraint("Horizontal", 23, 2, 60, 2))
sketch2.addConstraint(Sketcher.Constraint("Horizontal", 19, 2, 64, 2))
sketch2.addConstraint(Sketcher.Constraint("Horizontal", 15, 2, 68, 2))
sketch2.addConstraint(Sketcher.Constraint("Horizontal", 7, 2, 72, 2))
sketch2.addConstraint(Sketcher.Constraint("Horizontal", 3, 2, 76, 2))
sketch2.addConstraint(Sketcher.Constraint("Vertical", 19, 2, 24, 2))
sketch2.addConstraint(Sketcher.Constraint("Vertical", 15, 2, 28, 2))
sketch2.addConstraint(Sketcher.Constraint("Vertical", 7, 2, 32, 2))
sketch2.addConstraint(Sketcher.Constraint("Vertical", 3, 2, 36, 2))
sketch2.addConstraint(Sketcher.Constraint("Vertical", 11, 2, 40, 2))
sketch2.addConstraint(Sketcher.Constraint("Equal", 40, 20))
sketch2.addConstraint(Sketcher.Constraint("Equal", 0, 4))
sketch2.addConstraint(Sketcher.Constraint("Equal", 4, 12))
sketch2.addConstraint(Sketcher.Constraint("Equal", 12, 16))
sketch2.addConstraint(Sketcher.Constraint("Radius", 2, Q("13.5 mm")))
sketch2.addConstraint(Sketcher.Constraint("Angle", 0, Q("162 deg")))
sketch2.addConstraint(Sketcher.Constraint("Angle", 4, Q("144 deg")))
sketch2.addConstraint(Sketcher.Constraint("DistanceX", 8, 2, 8, 1, Q("1.5 mm")))
sketch2.addConstraint(Sketcher.Constraint("Distance", 0, Q("1.5 mm")))
sketch2.addConstraint(Sketcher.Constraint("DistanceY", -1, 1, 8, 2, Q("16.5 mm")))
sketch2.addConstraint(Sketcher.Constraint("DistanceX", 9, 2, -1, 1, Q("1.5 mm")))
sketch2.addConstraint(Sketcher.Constraint("DistanceX", -1, 1, 20, 2, Q("16.5 mm")))
sketch2.addConstraint(Sketcher.Constraint("DistanceY", -1, 1, 21, 2, Q("1.5 mm")))
sketch2.addConstraint(Sketcher.Constraint("Radius", 1, Q("15.250693 mm")))
sketch2.addConstraint(Sketcher.Constraint("DistanceX", -1, 1, 1, 3, Q("16.461581 mm")))
sketch2.addConstraint(Sketcher.Constraint("DistanceY", -1, 1, 1, 3, Q("6.61014 mm")))
sketch2.addConstraint(Sketcher.Constraint("DistanceY", -1, 1, 3, 3, Q("15.023591 mm")))
sketch2.addConstraint(Sketcher.Constraint("DistanceX", -1, 1, 5, 3, Q("17.69854 mm")))
sketch2.addConstraint(Sketcher.Constraint("DistanceY", -1, 1, 5, 3, Q("1.199709 mm")))
sketch2.addConstraint(Sketcher.Constraint("DistanceX", 7, 3, -1, 1, Q("4.328159 mm")))
sketch2.addConstraint(Sketcher.Constraint("DistanceY", 13, 3, -1, 1, Q("4.328159 mm")))
sketch2.addConstraint(Sketcher.Constraint("DistanceX", -1, 1, 15, 3, Q("1.199709 mm")))
sketch2.addConstraint(Sketcher.Constraint("DistanceY", -1, 1, 15, 3, Q("17.69854 mm")))
sketch2.addConstraint(Sketcher.Constraint("DistanceX", -1, 1, 17, 3, Q("15.023591 mm")))
sketch2.addConstraint(Sketcher.Constraint("DistanceX", -1, 1, 19, 3, Q("6.61014 mm")))
sketch2.addConstraint(Sketcher.Constraint("DistanceY", -1, 1, 19, 3, Q("16.461581 mm")))
sketch2.addConstraint(Sketcher.Constraint("DistanceX", -1, 1, 0, 2, Q("4.385488 mm")))
sketch2.addConstraint(Sketcher.Constraint("DistanceY", -1, 1, 4, 2, Q("13.789619 mm")))
sketch2.addConstraint(Sketcher.Constraint("DistanceX", -1, 1, 12, 2, Q("12.907941 mm")))
sketch2.addConstraint(Sketcher.Constraint("DistanceX", -1, 1, 16, 2, Q("15.46067 mm")))
pad2 = doc.addObject("PartDesign::Pad", "Pad001")
body.addObject(pad2)
pad2.Profile = sketch2
pad2.Length = 5.5

sketch3 = doc.addObject("Sketcher::SketchObject", "Sketch002")
body.addObject(sketch3)
sketch3.AttachmentSupport = (doc.XY_Plane, [""])
sketch3.MapMode = "FlatFace"
sketch3.addGeometry(Part.Circle(V(0, 0, 0), V(0, 0, 1), 2), False)
sketch3.addConstraint(Sketcher.Constraint("Coincident", 0, 3, -1, 1))
sketch3.addConstraint(Sketcher.Constraint("Diameter", 0, Q("4 mm")))
pocket1 = doc.addObject("PartDesign::Pocket", "Pocket")
body.addObject(pocket1)
pocket1.Profile = sketch3
pocket1.Type = "ThroughAll"
pocket1.Reversed = True

sketch4 = doc.addObject("Sketcher::SketchObject", "Sketch003")
body.addObject(sketch4)
sketch4.AttachmentSupport = (doc.XY_Plane, [""])
sketch4.MapMode = "FlatFace"
sketch4.addGeometry(Part.Circle(V(0, 0, 0), V(0, 0, 1), 12.5), False)
sketch4.addGeometry(Part.Circle(V(0, 0, 0), V(0, 0, 1), 3), False)
sketch4.addConstraint(Sketcher.Constraint("Coincident", 0, 3, -1, 1))
sketch4.addConstraint(Sketcher.Constraint("Coincident", 1, 3, -1, 1))
sketch4.addConstraint(Sketcher.Constraint("Diameter", 0, Q("25 mm")))
sketch4.addConstraint(Sketcher.Constraint("Diameter", 1, Q("6 mm")))
pocket2 = doc.addObject("PartDesign::Pocket", "Pocket001")
body.addObject(pocket2)
pocket2.Profile = sketch4
pocket2.Length = 4
pocket2.Reversed = True

doc.recompute()
